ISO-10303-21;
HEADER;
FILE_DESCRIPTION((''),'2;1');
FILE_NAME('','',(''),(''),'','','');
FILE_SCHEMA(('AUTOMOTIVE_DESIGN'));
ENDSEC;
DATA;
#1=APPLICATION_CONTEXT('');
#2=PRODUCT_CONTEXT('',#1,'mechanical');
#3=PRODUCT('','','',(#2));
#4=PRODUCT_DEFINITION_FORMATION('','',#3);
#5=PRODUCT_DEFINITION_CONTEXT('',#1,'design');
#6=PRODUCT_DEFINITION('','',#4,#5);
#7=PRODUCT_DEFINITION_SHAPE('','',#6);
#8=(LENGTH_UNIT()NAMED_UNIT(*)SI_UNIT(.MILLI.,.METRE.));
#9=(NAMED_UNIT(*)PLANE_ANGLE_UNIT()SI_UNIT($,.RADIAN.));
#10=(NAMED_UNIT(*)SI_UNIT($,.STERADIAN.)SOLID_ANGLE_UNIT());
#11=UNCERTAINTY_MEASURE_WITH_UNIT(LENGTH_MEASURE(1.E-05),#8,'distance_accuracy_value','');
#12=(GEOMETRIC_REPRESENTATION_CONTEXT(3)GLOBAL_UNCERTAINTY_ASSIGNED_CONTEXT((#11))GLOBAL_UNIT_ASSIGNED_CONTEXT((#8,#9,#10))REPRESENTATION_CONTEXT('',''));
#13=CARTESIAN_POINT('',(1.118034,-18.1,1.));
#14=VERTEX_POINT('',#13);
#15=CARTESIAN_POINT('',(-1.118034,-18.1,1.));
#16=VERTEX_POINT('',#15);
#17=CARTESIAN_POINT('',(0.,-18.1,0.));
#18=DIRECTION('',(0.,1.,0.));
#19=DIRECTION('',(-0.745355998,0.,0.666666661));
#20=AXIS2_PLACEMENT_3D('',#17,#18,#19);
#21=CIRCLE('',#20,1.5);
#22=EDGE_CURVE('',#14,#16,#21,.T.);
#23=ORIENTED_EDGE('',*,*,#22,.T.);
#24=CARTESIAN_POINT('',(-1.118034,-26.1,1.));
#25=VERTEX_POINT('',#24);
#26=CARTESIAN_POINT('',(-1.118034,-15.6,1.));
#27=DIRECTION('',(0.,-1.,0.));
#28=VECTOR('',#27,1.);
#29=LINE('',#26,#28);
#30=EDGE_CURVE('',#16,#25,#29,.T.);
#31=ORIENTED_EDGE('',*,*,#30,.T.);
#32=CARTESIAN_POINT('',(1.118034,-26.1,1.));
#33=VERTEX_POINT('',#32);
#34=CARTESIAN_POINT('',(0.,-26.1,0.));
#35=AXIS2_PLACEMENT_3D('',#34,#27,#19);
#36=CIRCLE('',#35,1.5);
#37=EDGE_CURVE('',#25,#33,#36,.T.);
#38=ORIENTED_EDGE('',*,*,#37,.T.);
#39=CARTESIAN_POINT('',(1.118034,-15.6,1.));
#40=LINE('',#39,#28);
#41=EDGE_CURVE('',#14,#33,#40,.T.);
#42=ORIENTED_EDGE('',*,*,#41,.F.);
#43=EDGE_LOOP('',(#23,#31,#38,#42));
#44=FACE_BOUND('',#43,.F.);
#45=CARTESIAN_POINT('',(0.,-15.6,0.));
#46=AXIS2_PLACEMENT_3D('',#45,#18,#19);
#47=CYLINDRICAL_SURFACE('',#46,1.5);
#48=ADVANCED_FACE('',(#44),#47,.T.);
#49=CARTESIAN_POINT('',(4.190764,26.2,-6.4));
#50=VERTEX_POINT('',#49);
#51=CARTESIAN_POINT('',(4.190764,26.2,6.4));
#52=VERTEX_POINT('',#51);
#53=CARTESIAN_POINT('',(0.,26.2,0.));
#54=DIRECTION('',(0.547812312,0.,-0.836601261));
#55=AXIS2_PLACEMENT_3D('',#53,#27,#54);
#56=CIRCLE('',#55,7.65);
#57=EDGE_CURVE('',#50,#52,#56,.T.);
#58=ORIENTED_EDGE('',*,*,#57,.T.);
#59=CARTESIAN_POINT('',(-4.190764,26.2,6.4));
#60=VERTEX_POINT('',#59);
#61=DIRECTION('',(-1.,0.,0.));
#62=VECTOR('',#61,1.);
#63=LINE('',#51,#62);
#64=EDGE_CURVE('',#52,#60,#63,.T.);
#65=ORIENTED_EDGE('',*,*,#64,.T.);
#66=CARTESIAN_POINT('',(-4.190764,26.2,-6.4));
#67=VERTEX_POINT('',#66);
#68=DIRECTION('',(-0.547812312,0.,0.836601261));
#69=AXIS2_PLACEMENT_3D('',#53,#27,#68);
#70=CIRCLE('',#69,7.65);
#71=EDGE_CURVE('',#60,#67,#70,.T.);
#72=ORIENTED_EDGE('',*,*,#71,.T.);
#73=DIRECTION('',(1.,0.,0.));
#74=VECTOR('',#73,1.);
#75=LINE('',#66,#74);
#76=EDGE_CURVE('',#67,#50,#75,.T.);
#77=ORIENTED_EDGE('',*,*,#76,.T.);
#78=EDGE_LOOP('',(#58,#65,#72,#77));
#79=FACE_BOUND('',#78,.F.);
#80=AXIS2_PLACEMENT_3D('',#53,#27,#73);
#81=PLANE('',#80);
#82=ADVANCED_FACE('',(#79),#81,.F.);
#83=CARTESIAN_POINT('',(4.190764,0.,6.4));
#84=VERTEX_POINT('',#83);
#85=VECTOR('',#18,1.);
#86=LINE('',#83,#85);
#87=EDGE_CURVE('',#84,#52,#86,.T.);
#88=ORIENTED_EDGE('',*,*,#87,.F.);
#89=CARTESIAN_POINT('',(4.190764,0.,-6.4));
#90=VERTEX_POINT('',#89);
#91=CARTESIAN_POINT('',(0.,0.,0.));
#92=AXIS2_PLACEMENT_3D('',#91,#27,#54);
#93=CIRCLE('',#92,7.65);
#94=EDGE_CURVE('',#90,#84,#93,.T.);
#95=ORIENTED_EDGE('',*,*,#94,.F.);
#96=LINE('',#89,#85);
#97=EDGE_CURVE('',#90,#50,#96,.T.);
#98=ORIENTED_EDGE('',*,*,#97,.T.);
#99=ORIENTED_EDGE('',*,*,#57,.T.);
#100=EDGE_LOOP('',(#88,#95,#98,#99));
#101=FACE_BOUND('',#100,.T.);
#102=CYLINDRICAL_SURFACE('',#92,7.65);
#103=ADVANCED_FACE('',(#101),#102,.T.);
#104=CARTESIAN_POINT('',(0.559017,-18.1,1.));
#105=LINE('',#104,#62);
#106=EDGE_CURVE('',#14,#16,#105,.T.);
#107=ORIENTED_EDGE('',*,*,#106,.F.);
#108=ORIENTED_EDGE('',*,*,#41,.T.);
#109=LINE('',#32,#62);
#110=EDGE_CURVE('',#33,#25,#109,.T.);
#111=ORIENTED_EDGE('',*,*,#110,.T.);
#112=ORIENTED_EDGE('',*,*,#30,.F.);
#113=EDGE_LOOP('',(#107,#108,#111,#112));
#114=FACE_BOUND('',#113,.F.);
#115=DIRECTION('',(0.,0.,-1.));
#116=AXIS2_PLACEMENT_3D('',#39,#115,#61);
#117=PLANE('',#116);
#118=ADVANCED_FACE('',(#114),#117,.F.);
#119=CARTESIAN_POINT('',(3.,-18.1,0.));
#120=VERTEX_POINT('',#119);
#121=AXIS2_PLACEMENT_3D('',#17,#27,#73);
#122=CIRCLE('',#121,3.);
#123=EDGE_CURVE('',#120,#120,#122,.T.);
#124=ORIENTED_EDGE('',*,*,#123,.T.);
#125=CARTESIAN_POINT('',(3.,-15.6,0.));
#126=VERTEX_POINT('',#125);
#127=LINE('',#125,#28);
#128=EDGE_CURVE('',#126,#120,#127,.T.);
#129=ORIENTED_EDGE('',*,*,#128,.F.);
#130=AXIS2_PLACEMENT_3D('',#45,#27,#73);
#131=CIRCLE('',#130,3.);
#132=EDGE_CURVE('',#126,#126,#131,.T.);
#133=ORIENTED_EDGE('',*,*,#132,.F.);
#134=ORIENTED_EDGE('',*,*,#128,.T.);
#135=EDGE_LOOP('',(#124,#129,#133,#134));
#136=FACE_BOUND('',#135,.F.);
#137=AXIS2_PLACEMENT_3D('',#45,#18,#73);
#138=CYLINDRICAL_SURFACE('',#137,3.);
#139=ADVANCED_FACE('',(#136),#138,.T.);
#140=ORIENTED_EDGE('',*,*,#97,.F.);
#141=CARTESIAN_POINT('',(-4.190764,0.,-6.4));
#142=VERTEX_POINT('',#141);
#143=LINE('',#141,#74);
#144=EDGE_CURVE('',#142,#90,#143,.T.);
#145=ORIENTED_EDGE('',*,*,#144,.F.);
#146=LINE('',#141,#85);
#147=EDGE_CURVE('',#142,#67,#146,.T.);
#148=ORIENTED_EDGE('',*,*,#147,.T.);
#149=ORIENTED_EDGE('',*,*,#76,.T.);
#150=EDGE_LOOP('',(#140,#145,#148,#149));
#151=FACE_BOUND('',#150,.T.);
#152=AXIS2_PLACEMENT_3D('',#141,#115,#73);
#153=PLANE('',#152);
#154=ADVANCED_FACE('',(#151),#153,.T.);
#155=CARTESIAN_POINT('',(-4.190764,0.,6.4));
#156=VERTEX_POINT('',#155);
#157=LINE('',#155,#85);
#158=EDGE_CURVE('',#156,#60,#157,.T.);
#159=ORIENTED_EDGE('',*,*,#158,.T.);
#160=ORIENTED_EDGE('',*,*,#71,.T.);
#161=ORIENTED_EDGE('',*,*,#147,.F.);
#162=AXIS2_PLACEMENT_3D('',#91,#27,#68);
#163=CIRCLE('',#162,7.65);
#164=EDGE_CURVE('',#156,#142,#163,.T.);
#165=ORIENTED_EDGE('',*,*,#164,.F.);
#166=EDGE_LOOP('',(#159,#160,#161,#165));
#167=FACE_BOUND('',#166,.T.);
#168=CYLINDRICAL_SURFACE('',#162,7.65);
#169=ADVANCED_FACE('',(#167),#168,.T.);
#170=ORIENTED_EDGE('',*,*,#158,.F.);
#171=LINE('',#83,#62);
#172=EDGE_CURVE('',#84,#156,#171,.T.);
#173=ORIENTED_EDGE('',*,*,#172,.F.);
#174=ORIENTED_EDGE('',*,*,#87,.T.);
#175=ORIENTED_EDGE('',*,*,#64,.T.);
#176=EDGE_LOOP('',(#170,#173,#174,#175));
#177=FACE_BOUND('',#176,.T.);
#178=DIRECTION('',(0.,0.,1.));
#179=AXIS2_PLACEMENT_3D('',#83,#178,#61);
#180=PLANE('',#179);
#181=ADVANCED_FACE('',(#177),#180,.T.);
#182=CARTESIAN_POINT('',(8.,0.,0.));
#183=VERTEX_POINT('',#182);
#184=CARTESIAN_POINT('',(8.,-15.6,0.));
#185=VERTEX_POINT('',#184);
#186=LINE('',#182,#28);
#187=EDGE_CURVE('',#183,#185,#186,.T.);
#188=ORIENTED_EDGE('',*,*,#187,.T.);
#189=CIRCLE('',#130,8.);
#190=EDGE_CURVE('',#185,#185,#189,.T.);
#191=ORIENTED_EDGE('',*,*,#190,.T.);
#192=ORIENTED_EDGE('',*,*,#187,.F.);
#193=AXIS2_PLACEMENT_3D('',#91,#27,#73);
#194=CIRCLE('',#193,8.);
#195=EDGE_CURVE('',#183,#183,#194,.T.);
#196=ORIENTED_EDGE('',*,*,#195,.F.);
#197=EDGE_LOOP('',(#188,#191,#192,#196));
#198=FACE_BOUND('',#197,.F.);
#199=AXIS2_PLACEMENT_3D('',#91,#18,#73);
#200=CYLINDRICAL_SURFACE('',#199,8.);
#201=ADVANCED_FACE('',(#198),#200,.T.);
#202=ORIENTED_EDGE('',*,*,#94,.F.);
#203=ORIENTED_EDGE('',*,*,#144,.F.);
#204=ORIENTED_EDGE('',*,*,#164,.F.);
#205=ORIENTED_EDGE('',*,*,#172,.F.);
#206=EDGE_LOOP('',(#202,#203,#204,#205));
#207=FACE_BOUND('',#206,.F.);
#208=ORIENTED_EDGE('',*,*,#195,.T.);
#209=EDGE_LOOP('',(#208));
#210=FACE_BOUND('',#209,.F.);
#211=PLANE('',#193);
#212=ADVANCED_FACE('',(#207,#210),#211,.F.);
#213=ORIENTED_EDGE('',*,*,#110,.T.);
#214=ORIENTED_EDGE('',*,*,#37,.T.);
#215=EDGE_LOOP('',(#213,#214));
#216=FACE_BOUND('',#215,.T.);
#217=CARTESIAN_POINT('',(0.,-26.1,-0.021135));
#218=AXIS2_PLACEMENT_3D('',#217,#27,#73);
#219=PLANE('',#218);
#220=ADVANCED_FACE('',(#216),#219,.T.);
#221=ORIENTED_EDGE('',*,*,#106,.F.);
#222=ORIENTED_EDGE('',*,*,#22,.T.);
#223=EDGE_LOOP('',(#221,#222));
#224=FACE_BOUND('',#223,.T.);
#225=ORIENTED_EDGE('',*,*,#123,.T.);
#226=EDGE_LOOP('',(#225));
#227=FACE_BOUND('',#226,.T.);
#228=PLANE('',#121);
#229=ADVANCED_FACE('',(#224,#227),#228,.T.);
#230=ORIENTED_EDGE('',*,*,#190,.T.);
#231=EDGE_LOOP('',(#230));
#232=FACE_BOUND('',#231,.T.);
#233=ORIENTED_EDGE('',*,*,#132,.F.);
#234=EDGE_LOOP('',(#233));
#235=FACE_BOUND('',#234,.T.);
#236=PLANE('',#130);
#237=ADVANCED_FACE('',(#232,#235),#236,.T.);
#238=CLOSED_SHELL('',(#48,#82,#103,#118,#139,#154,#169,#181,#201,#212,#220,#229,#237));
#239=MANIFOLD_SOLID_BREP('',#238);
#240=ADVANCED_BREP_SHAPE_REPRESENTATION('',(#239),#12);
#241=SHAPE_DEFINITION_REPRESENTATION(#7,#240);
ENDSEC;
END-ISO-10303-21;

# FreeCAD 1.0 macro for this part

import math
import FreeCAD as App
import Part
import Sketcher
Q = App.Units.Quantity

doc = App.newDocument("Part")
body = doc.addObject("PartDesign::Body", "Body")

# Sketch on XZ plane
sketch1 = doc.addObject("Sketcher::SketchObject", "Sketch")
body.addObject(sketch1)
sketch1.AttachmentSupport = (doc.XZ_Plane, [""])
sketch1.MapMode = "FlatFace"
sketch1.addGeometry([
    Part.LineSegment(App.Vector(4.190764, 6.4, 0), App.Vector(-4.190764, 6.4, 0)),
    Part.ArcOfCircle(Part.Circle(App.Vector(0, 0, 0), App.Vector(0, 0, 1), 7.65), math.radians(123.217058), math.radians(236.782942)),
    Part.LineSegment(App.Vector(-4.190764, -6.4, 0), App.Vector(4.190764, -6.4, 0)),
    Part.ArcOfCircle(Part.Circle(App.Vector(0, 0, 0), App.Vector(0, 0, 1), 7.65), math.radians(-56.782942), math.radians(56.782942)),
], False)
sketch1.addConstraint([
    Sketcher.Constraint("Coincident", 0, 2, 1, 1),
    Sketcher.Constraint("Coincident", 1, 2, 2, 1),
    Sketcher.Constraint("Coincident", 2, 2, 3, 1),
    Sketcher.Constraint("Coincident", 3, 2, 0, 1),
    Sketcher.Constraint("Horizontal", 0),
    Sketcher.Constraint("Horizontal", 2),
    Sketcher.Constraint("Coincident", 1, 3, -1, 1),
    Sketcher.Constraint("Coincident", 3, 3, -1, 1),
    Sketcher.Constraint("Equal", 1, 3),
    Sketcher.Constraint("Vertical", 0, 2, 1, 2),
    Sketcher.Constraint("Radius", 1, Q("7.65 mm")),
    Sketcher.Constraint("DistanceY", -1, 1, 0, 2, Q("6.4 mm")),
])
pad1 = doc.addObject("PartDesign::Pad", "Pad")
body.addObject(pad1)
pad1.Profile = sketch1
pad1.Length = 26.2
pad1.Reversed = True

# Sketch on XZ plane
sketch2 = doc.addObject("Sketcher::SketchObject", "Sketch001")
body.addObject(sketch2)
sketch2.AttachmentSupport = (doc.XZ_Plane, [""])
sketch2.MapMode = "FlatFace"
sketch2.addGeometry(Part.Circle(App.Vector(0, 0, 0), App.Vector(0, 0, 1), 8), False)
sketch2.addConstraint([
    Sketcher.Constraint("Coincident", 0, 3, -1, 1),
    Sketcher.Constraint("Diameter", 0, Q("16 mm")),
])
pad2 = doc.addObject("PartDesign::Pad", "Pad001")
body.addObject(pad2)
pad2.Profile = sketch2
pad2.Length = 15.6

# Sketch on XZ plane
sketch3 = doc.addObject("Sketcher::SketchObject", "Sketch002")
body.addObject(sketch3)
sketch3.AttachmentSupport = (doc.XZ_Plane, [""])
sketch3.MapMode = "FlatFace"
sketch3.AttachmentOffset = App.Placement(App.Vector(0, 0, 15.6), App.Rotation())
sketch3.addGeometry([
    Part.LineSegment(App.Vector(1.118034, 1, 0), App.Vector(-1.118034, 1, 0)),
    Part.ArcOfCircle(Part.Circle(App.Vector(0, 0, 0), App.Vector(0, 0, 1), 1.5), math.radians(138.189686), math.radians(401.810314)),
], False)
sketch3.addConstraint([
    Sketcher.Constraint("Coincident", 0, 1, 1, 2),
    Sketcher.Constraint("Coincident", 1, 1, 0, 2),
    Sketcher.Constraint("Horizontal", 0),
    Sketcher.Constraint("Coincident", 1, 3, -1, 1),
    Sketcher.Constraint("Radius", 1, Q("1.5 mm")),
    Sketcher.Constraint("DistanceY", -1, 1, 0, 1, Q("1 mm")),
])
pad3 = doc.addObject("PartDesign::Pad", "Pad002")
body.addObject(pad3)
pad3.Profile = sketch3
pad3.Length = 10.5

# Sketch on XZ plane
sketch4 = doc.addObject("Sketcher::SketchObject", "Sketch003")
body.addObject(sketch4)
sketch4.AttachmentSupport = (doc.XZ_Plane, [""])
sketch4.MapMode = "FlatFace"
sketch4.AttachmentOffset = App.Placement(App.Vector(0, 0, 15.6), App.Rotation())
sketch4.addGeometry(Part.Circle(App.Vector(0, 0, 0), App.Vector(0, 0, 1), 3), False)
sketch4.addConstraint([
    Sketcher.Constraint("Coincident", 0, 3, -1, 1),
    Sketcher.Constraint("Diameter", 0, Q("6 mm")),
])
pad4 = doc.addObject("PartDesign::Pad", "Pad003")
body.addObject(pad4)
pad4.Profile = sketch4
pad4.Length = 2.5

# Sketch on XZ plane
sketch5 = doc.addObject("Sketcher::SketchObject", "Sketch004")
body.addObject(sketch5)
sketch5.AttachmentSupport = (doc.XZ_Plane, [""])
sketch5.MapMode = "FlatFace"
sketch5.AttachmentOffset = App.Placement(App.Vector(0, 0, 15.6), App.Rotation())
sketch5.addGeometry([
    Part.Circle(App.Vector(-13.127005, 0, 0), App.Vector(0, 0, 1), 1.944472),
    Part.Circle(App.Vector(13.127005, 0, 0), App.Vector(0, 0, 1), 1.944472),
], False)
sketch5.addConstraint([
    Sketcher.Constraint("Equal", 0, 1),
    Sketcher.Constraint("Symmetric", 0, 3, 1, 3, -1, 1),
    Sketcher.Constraint("PointOnObject", 0, 3, -1),
    Sketcher.Constraint("Diameter", 0, Q("3.888944 mm")),
    Sketcher.Constraint("DistanceX", 0, 3, 1, 3, Q("26.25401 mm")),
])
pocket1 = doc.addObject("PartDesign::Pocket", "Pocket")
body.addObject(pocket1)
pocket1.Profile = sketch5
pocket1.Length = 20

doc.recompute()
